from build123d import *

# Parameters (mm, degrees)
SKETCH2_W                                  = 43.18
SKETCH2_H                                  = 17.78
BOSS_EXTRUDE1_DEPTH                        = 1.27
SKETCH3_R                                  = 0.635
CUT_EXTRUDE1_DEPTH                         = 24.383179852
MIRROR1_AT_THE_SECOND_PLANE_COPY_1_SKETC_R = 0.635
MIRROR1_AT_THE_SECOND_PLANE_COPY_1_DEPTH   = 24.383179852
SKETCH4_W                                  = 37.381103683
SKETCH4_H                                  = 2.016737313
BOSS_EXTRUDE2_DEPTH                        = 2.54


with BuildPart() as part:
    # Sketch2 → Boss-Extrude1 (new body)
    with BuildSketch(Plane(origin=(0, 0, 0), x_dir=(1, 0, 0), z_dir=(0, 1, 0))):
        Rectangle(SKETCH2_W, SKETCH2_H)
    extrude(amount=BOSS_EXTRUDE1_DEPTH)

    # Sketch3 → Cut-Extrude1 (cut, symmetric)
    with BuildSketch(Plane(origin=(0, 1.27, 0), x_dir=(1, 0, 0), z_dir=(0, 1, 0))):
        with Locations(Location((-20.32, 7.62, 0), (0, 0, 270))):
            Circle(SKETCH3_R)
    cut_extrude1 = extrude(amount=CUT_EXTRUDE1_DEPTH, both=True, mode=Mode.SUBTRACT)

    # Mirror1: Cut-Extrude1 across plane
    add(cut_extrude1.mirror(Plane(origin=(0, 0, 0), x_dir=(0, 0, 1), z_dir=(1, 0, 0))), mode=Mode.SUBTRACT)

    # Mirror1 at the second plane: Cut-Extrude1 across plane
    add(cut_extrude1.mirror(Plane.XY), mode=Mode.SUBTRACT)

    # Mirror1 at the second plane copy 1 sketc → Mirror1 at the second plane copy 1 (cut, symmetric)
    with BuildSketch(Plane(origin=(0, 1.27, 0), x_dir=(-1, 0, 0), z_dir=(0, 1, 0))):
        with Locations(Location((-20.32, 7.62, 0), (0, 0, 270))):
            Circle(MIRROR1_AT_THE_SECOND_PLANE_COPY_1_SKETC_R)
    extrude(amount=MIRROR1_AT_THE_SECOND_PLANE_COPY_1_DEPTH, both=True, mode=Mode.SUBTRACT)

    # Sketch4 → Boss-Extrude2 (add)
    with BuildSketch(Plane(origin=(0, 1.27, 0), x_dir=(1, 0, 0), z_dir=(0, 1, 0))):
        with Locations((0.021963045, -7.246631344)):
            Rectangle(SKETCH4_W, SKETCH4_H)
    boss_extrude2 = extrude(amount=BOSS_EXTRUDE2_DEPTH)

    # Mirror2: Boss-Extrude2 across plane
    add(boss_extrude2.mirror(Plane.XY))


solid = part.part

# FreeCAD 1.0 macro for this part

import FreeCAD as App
import Part
import Sketcher
Q = App.Units.Quantity


def add_polygon(sketch, points):
    """Adds a closed chain of lines whose ends are joined by coincident constraints."""
    first, n = sketch.GeometryCount, len(points)
    for a, b in zip(points, points[1:] + points[:1]):
        sketch.addGeometry(Part.LineSegment(App.Vector(*a, 0), App.Vector(*b, 0)), False)
    for i in range(n):
        sketch.addConstraint(Sketcher.Constraint("Coincident", first + i, 2, first + (i + 1) % n, 1))

doc = App.newDocument("Part")
body = doc.addObject("PartDesign::Body", "Body")

# Sketch on XZ plane
sketch1 = body.newObject("Sketcher::SketchObject", "Sketch")
sketch1.AttachmentSupport = (doc.getObject("XZ_Plane"), [""])
sketch1.MapMode = "FlatFace"
add_polygon(sketch1, [(-21.59, -8.89), (-21.59, 8.89), (21.59, 8.89), (21.59, -8.89)])  # lines 0-3
sketch1.addConstraint([
    Sketcher.Constraint("Vertical", 0),
    Sketcher.Constraint("Horizontal", 1),
    Sketcher.Constraint("Vertical", 2),
    Sketcher.Constraint("Horizontal", 3),
    Sketcher.Constraint("Symmetric", 0, 2, 2, 2, -1, 1),
    Sketcher.Constraint("DistanceX", 1, 1, 1, 2, Q("1.7 in")),
    Sketcher.Constraint("DistanceY", 0, 1, 0, 2, Q("0.7 in")),
])
pad1 = body.newObject("PartDesign::Pad", "Pad")
pad1.Profile = sketch1
pad1.Length = Q("0.05 in")
pad1.Reversed = True

# Sketch on XZ plane
sketch2 = body.newObject("Sketcher::SketchObject", "Sketch001")
sketch2.AttachmentSupport = (doc.getObject("XZ_Plane"), [""])
sketch2.MapMode = "FlatFace"
sketch2.AttachmentOffset = App.Placement(App.Vector(0, 0, -0.05 * 25.4), App.Rotation())
sketch2.addGeometry(Part.Circle(App.Vector(-20.32, -7.62, 0), App.Vector(0, 0, 1), 0.635), False)
sketch2.addConstraint([
    Sketcher.Constraint("Diameter", 0, Q("0.05 in")),
    Sketcher.Constraint("DistanceX", 0, 3, -1, 1, Q("0.8 in")),
    Sketcher.Constraint("DistanceY", 0, 3, -1, 1, Q("0.3 in")),
])
pocket1 = body.newObject("PartDesign::Pocket", "Pocket")
pocket1.Profile = sketch2
pocket1.Length = 48.76636
pocket1.Midplane = True
doc.recompute()

mirrored = body.newObject("PartDesign::Mirrored", "Mirrored")
mirrored.Originals = [pocket1]
mirrored.MirrorPlane = (doc.getObject("YZ_Plane"), [""])
body.Tip = mirrored
doc.recompute()

mirrored2 = body.newObject("PartDesign::Mirrored", "Mirrored001")
mirrored2.Originals = [pocket1]
mirrored2.MirrorPlane = (doc.getObject("XY_Plane"), [""])
body.Tip = mirrored2

# Sketch on XZ plane
sketch3 = body.newObject("Sketcher::SketchObject", "Sketch002")
sketch3.AttachmentSupport = (doc.getObject("XZ_Plane"), [""])
sketch3.MapMode = "FlatFace"
sketch3.AttachmentOffset = App.Placement(App.Vector(0, 0, -0.05 * 25.4), App.Rotation())
sketch3.addGeometry(Part.Circle(App.Vector(20.32, 7.62, 0), App.Vector(0, 0, 1), 0.635), False)
sketch3.addConstraint([
    Sketcher.Constraint("Diameter", 0, Q("0.05 in")),
    Sketcher.Constraint("DistanceX", -1, 1, 0, 3, Q("0.8 in")),
    Sketcher.Constraint("DistanceY", -1, 1, 0, 3, Q("0.3 in")),
])
pocket2 = body.newObject("PartDesign::Pocket", "Pocket001")
pocket2.Profile = sketch3
pocket2.Length = 48.76636
pocket2.Midplane = True

# Sketch on XZ plane
sketch4 = body.newObject("Sketcher::SketchObject", "Sketch003")
sketch4.AttachmentSupport = (doc.getObject("XZ_Plane"), [""])
sketch4.MapMode = "FlatFace"
sketch4.AttachmentOffset = App.Placement(App.Vector(0, 0, -0.05 * 25.4), App.Rotation())
add_polygon(sketch4, [(-18.668589, 6.238263), (-18.668589, 8.255), (18.712515, 8.255), (18.712515, 6.238263)])  # lines 0-3
sketch4.addConstraint([
    Sketcher.Constraint("Vertical", 0),
    Sketcher.Constraint("Horizontal", 1),
    Sketcher.Constraint("Vertical", 2),
    Sketcher.Constraint("Horizontal", 3),
    Sketcher.Constraint("DistanceY", -1, 1, 0, 2, Q("0.325 in")),
    Sketcher.Constraint("DistanceX", 1, 1, 1, 2, 37.381104),
    Sketcher.Constraint("DistanceY", 0, 1, 0, 2, 2.016737),
    Sketcher.Constraint("DistanceX", 0, 2, -1, 1, 18.668589),
])
pad2 = body.newObject("PartDesign::Pad", "Pad001")
pad2.Profile = sketch4
pad2.Length = Q("0.1 in")
pad2.Reversed = True
doc.recompute()

mirrored3 = body.newObject("PartDesign::Mirrored", "Mirrored002")
mirrored3.Originals = [pad2]
mirrored3.MirrorPlane = (doc.getObject("XY_Plane"), [""])
body.Tip = mirrored3

doc.recompute()
